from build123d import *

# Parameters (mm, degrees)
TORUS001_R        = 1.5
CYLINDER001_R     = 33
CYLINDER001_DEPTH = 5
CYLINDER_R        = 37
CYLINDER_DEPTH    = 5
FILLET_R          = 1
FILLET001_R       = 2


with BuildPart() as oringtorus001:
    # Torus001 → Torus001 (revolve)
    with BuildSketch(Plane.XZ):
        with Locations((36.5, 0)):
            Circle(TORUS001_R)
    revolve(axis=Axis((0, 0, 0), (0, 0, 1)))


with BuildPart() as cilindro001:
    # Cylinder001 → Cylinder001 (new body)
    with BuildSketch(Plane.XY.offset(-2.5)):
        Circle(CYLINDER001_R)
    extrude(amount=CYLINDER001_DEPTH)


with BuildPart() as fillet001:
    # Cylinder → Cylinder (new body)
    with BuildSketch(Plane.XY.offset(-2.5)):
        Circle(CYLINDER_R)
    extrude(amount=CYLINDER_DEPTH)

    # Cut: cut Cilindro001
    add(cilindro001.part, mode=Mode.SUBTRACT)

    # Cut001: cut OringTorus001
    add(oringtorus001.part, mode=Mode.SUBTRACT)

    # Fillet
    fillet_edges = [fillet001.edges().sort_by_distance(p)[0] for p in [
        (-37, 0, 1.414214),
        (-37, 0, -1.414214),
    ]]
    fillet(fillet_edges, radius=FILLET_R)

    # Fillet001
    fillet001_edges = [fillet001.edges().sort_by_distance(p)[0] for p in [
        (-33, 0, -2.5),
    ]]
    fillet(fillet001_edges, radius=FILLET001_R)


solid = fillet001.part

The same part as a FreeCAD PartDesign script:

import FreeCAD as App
import Part
import Sketcher
Q = App.Units.Quantity


def edges_at(feature, points):
    """Names of the edges that pass closest to the given points."""
    edges = feature.Shape.Edges
    near = lambda p: min(range(len(edges)), key=lambda i: edges[i].distToShape(Part.Vertex(*p))[0])
    return sorted({f"Edge{near(p) + 1}" for p in points})

doc = App.newDocument("Part")
body = doc.addObject("PartDesign::Body", "Body")

sketch1 = body.newObject("Sketcher::SketchObject", "Sketch")
sketch1.AttachmentSupport = (doc.getObject("XZ_Plane"), [""])
sketch1.MapMode = "FlatFace"
sketch1.addGeometry(Part.Circle(App.Vector(36.5, 0, 0), App.Vector(0, 0, 1), 1.5), False)
sketch1.addConstraint([
    Sketcher.Constraint("PointOnObject", 0, 3, -1),
    Sketcher.Constraint("Diameter", 0, Q("3 mm")),
    Sketcher.Constraint("DistanceX", -1, 1, 0, 3, Q("36.5 mm")),
])
revolution = body.newObject("PartDesign::Revolution", "Revolution")
revolution.Profile = sketch1
revolution.ReferenceAxis = (sketch1, ["V_Axis"])
revolution.Angle = 360
body2 = doc.addObject("PartDesign::Body", "Body001")

sketch2 = body2.newObject("Sketcher::SketchObject", "Sketch001")
sketch2.AttachmentSupport = (doc.getObject("XY_Plane001"), [""])
sketch2.MapMode = "FlatFace"
sketch2.AttachmentOffset = App.Placement(App.Vector(0, 0, -2.5), App.Rotation())
sketch2.addGeometry(Part.Circle(App.Vector(0, 0, 0), App.Vector(0, 0, 1), 33), False)
sketch2.addConstraint([
    Sketcher.Constraint("Coincident", 0, 3, -1, 1),
    Sketcher.Constraint("Diameter", 0, Q("66 mm")),
])
pad1 = body2.newObject("PartDesign::Pad", "Pad")
pad1.Profile = sketch2
pad1.Length = 5
body3 = doc.addObject("PartDesign::Body", "Body002")

sketch3 = body3.newObject("Sketcher::SketchObject", "Sketch002")
sketch3.AttachmentSupport = (doc.getObject("XY_Plane002"), [""])
sketch3.MapMode = "FlatFace"
sketch3.AttachmentOffset = App.Placement(App.Vector(0, 0, -2.5), App.Rotation())
sketch3.addGeometry(Part.Circle(App.Vector(0, 0, 0), App.Vector(0, 0, 1), 37), False)
sketch3.addConstraint([
    Sketcher.Constraint("Coincident", 0, 3, -1, 1),
    Sketcher.Constraint("Diameter", 0, Q("74 mm")),
])
pad2 = body3.newObject("PartDesign::Pad", "Pad001")
pad2.Profile = sketch3
pad2.Length = 5
doc.recompute()

boolean = body3.newObject("PartDesign::Boolean", "Boolean")
boolean.Type = "Cut"
boolean.addObjects([body2])
doc.recompute()

boolean2 = body3.newObject("PartDesign::Boolean", "Boolean001")
boolean2.Type = "Cut"
boolean2.addObjects([body])
doc.recompute()

fillet = body3.newObject("PartDesign::Fillet", "Fillet")
fillet.Base = (boolean2, edges_at(boolean2, [(-37, 0, 1.414), (-37, 0, -1.414)]))
fillet.Radius = 1
doc.recompute()

fillet2 = body3.newObject("PartDesign::Fillet", "Fillet001")
fillet2.Base = (fillet, edges_at(fillet, [(-33, 0, -2.5)]))
fillet2.Radius = 2

doc.recompute()
